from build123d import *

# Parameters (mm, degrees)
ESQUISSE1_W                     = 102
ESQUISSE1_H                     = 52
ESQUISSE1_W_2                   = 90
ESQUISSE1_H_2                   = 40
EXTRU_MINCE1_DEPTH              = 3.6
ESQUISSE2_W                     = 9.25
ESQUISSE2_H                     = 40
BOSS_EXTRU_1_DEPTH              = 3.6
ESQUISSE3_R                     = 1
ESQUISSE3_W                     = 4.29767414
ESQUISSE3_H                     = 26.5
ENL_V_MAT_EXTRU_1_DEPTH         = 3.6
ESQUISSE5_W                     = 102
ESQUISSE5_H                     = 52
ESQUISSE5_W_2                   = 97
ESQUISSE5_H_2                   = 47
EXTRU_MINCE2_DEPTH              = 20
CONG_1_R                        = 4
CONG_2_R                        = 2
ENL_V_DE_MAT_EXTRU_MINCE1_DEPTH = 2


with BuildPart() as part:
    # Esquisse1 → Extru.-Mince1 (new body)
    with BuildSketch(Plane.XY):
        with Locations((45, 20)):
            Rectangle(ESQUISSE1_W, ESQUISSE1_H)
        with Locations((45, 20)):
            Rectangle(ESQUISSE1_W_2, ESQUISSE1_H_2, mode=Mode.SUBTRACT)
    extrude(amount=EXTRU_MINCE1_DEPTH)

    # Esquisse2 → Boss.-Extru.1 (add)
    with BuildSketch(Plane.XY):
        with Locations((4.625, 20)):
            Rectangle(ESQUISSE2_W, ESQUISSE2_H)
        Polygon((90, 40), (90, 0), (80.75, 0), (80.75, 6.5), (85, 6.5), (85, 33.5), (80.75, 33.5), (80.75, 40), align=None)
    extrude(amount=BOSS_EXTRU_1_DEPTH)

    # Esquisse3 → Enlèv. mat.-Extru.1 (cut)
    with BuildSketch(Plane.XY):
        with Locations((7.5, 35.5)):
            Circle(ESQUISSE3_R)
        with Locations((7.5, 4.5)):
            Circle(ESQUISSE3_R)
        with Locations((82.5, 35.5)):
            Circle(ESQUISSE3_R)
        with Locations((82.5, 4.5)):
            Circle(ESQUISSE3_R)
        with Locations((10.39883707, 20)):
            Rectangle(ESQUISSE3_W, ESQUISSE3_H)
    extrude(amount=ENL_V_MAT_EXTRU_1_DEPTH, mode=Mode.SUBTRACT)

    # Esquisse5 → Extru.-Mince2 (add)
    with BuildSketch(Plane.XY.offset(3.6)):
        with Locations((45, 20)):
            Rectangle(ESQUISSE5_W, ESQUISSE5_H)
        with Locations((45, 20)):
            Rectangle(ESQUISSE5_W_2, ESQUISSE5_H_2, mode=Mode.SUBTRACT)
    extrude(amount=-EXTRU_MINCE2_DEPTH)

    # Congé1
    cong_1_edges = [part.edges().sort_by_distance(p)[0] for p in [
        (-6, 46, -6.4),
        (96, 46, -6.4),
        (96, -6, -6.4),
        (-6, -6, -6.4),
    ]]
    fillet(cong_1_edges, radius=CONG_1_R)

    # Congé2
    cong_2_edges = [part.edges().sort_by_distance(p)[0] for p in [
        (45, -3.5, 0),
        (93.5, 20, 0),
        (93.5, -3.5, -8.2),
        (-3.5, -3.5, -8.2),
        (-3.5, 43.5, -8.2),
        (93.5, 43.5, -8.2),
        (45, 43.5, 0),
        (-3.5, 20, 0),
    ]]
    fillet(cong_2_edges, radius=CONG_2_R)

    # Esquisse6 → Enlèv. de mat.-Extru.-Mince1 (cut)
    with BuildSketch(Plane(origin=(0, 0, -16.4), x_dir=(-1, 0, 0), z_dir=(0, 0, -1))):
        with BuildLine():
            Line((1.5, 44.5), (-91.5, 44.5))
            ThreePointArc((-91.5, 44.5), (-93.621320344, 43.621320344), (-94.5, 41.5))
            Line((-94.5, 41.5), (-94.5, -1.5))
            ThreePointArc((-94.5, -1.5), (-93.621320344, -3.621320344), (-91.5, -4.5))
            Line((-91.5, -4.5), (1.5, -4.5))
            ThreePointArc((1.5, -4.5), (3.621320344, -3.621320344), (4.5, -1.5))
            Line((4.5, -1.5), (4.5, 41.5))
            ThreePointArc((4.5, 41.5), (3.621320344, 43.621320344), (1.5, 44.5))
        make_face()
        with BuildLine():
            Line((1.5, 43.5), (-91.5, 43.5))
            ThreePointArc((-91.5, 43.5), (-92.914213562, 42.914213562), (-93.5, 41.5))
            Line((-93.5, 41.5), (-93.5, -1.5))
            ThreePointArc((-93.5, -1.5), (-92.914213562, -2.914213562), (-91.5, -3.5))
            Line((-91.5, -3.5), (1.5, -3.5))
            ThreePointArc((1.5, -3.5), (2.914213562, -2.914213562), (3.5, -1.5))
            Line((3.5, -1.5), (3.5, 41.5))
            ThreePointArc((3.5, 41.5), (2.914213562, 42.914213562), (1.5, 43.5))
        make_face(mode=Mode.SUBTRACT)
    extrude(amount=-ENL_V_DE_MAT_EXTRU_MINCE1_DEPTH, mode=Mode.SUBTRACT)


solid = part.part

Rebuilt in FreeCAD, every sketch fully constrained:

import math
import FreeCAD as App
import Part
import Sketcher


def edges_at(feature, points):
    """Names of the edges that pass closest to the given points."""
    edges = feature.Shape.Edges
    near = lambda p: min(range(len(edges)), key=lambda i: edges[i].distToShape(Part.Vertex(*p))[0])
    return sorted({f"Edge{near(p) + 1}" for p in points})

doc = App.newDocument("Part")
body = doc.addObject("PartDesign::Body", "Body")

# Sketch on XY plane
sketch1 = doc.addObject("Sketcher::SketchObject", "Sketch")
body.addObject(sketch1)
sketch1.AttachmentSupport = (doc.XY_Plane, [""])
sketch1.MapMode = "FlatFace"
sketch1.addGeometry(Part.LineSegment(App.Vector(-6, 46, 0), App.Vector(-6, -6, 0)), False)
sketch1.addGeometry(Part.LineSegment(App.Vector(-6, -6, 0), App.Vector(96, -6, 0)), False)
sketch1.addGeometry(Part.LineSegment(App.Vector(96, -6, 0), App.Vector(96, 46, 0)), False)
sketch1.addGeometry(Part.LineSegment(App.Vector(96, 46, 0), App.Vector(-6, 46, 0)), False)
sketch1.addGeometry(Part.LineSegment(App.Vector(90, 0, 0), App.Vector(0, 0, 0)), False)
sketch1.addGeometry(Part.LineSegment(App.Vector(0, 0, 0), App.Vector(0, 40, 0)), False)
sketch1.addGeometry(Part.LineSegment(App.Vector(0, 40, 0), App.Vector(90, 40, 0)), False)
sketch1.addGeometry(Part.LineSegment(App.Vector(90, 40, 0), App.Vector(90, 0, 0)), False)
sketch1.addConstraint(Sketcher.Constraint("Coincident", 0, 2, 1, 1))
sketch1.addConstraint(Sketcher.Constraint("Coincident", 1, 2, 2, 1))
sketch1.addConstraint(Sketcher.Constraint("Coincident", 2, 2, 3, 1))
sketch1.addConstraint(Sketcher.Constraint("Coincident", 3, 2, 0, 1))
sketch1.addConstraint(Sketcher.Constraint("Coincident", 4, 2, 5, 1))
sketch1.addConstraint(Sketcher.Constraint("Coincident", 5, 2, 6, 1))
sketch1.addConstraint(Sketcher.Constraint("Coincident", 6, 2, 7, 1))
sketch1.addConstraint(Sketcher.Constraint("Coincident", 7, 2, 4, 1))
sketch1.addConstraint(Sketcher.Constraint("Vertical", 0))
sketch1.addConstraint(Sketcher.Constraint("Horizontal", 1))
sketch1.addConstraint(Sketcher.Constraint("Vertical", 2))
sketch1.addConstraint(Sketcher.Constraint("Horizontal", 3))
sketch1.addConstraint(Sketcher.Constraint("Horizontal", 4))
sketch1.addConstraint(Sketcher.Constraint("Vertical", 5))
sketch1.addConstraint(Sketcher.Constraint("Horizontal", 6))
sketch1.addConstraint(Sketcher.Constraint("Vertical", 7))
sketch1.addConstraint(Sketcher.Constraint("Coincident", 4, 2, -1, 1))
sketch1.addConstraint(Sketcher.Constraint("DistanceX", 1, 1, 1, 2, 102.0))
sketch1.addConstraint(Sketcher.Constraint("DistanceX", 4, 2, 4, 1, 90.0))
sketch1.addConstraint(Sketcher.Constraint("DistanceY", 0, 2, 0, 1, 52.0))
sketch1.addConstraint(Sketcher.Constraint("DistanceY", 5, 1, 5, 2, 40.0))
sketch1.addConstraint(Sketcher.Constraint("DistanceX", 0, 2, -1, 1, 6.0))
sketch1.addConstraint(Sketcher.Constraint("DistanceY", 0, 2, -1, 1, 6.0))
pad1 = doc.addObject("PartDesign::Pad", "Pad")
body.addObject(pad1)
pad1.Profile = sketch1
pad1.Length = 3.6

# Sketch on XY plane
sketch2 = doc.addObject("Sketcher::SketchObject", "Sketch001")
body.addObject(sketch2)
sketch2.AttachmentSupport = (doc.XY_Plane, [""])
sketch2.MapMode = "FlatFace"
sketch2.addGeometry(Part.LineSegment(App.Vector(0, 40, 0), App.Vector(0, 0, 0)), False)
sketch2.addGeometry(Part.LineSegment(App.Vector(0, 0, 0), App.Vector(9.2, 0, 0)), False)
sketch2.addGeometry(Part.LineSegment(App.Vector(9.2, 0, 0), App.Vector(9.2, 40, 0)), False)
sketch2.addGeometry(Part.LineSegment(App.Vector(9.2, 40, 0), App.Vector(0, 40, 0)), False)
sketch2.addGeometry(Part.LineSegment(App.Vector(90, 0, 0), App.Vector(90, 40, 0)), False)
sketch2.addGeometry(Part.LineSegment(App.Vector(90, 40, 0), App.Vector(80.8, 40, 0)), False)
sketch2.addGeometry(Part.LineSegment(App.Vector(80.8, 40, 0), App.Vector(80.8, 33.5, 0)), False)
sketch2.addGeometry(Part.LineSegment(App.Vector(80.8, 33.5, 0), App.Vector(85, 33.5, 0)), False)
sketch2.addGeometry(Part.LineSegment(App.Vector(85, 33.5, 0), App.Vector(85, 6.5, 0)), False)
sketch2.addGeometry(Part.LineSegment(App.Vector(85, 6.5, 0), App.Vector(80.8, 6.5, 0)), False)
sketch2.addGeometry(Part.LineSegment(App.Vector(80.8, 6.5, 0), App.Vector(80.8, 0, 0)), False)
sketch2.addGeometry(Part.LineSegment(App.Vector(80.8, 0, 0), App.Vector(90, 0, 0)), False)
sketch2.addConstraint(Sketcher.Constraint("Coincident", 0, 2, 1, 1))
sketch2.addConstraint(Sketcher.Constraint("Coincident", 1, 2, 2, 1))
sketch2.addConstraint(Sketcher.Constraint("Coincident", 2, 2, 3, 1))
sketch2.addConstraint(Sketcher.Constraint("Coincident", 3, 2, 0, 1))
sketch2.addConstraint(Sketcher.Constraint("Coincident", 4, 2, 5, 1))
sketch2.addConstraint(Sketcher.Constraint("Coincident", 5, 2, 6, 1))
sketch2.addConstraint(Sketcher.Constraint("Coincident", 6, 2, 7, 1))
sketch2.addConstraint(Sketcher.Constraint("Coincident", 7, 2, 8, 1))
sketch2.addConstraint(Sketcher.Constraint("Coincident", 8, 2, 9, 1))
sketch2.addConstraint(Sketcher.Constraint("Coincident", 9, 2, 10, 1))
sketch2.addConstraint(Sketcher.Constraint("Coincident", 10, 2, 11, 1))
sketch2.addConstraint(Sketcher.Constraint("Coincident", 11, 2, 4, 1))
sketch2.addConstraint(Sketcher.Constraint("Vertical", 0))
sketch2.addConstraint(Sketcher.Constraint("Horizontal", 1))
sketch2.addConstraint(Sketcher.Constraint("Vertical", 2))
sketch2.addConstraint(Sketcher.Constraint("Horizontal", 3))
sketch2.addConstraint(Sketcher.Constraint("Vertical", 4))
sketch2.addConstraint(Sketcher.Constraint("Horizontal", 5))
sketch2.addConstraint(Sketcher.Constraint("Vertical", 6))
sketch2.addConstraint(Sketcher.Constraint("Horizontal", 7))
sketch2.addConstraint(Sketcher.Constraint("Vertical", 8))
sketch2.addConstraint(Sketcher.Constraint("Horizontal", 9))
sketch2.addConstraint(Sketcher.Constraint("Vertical", 10))
sketch2.addConstraint(Sketcher.Constraint("Horizontal", 11))
sketch2.addConstraint(Sketcher.Constraint("Coincident", 0, 2, -1, 1))
sketch2.addConstraint(Sketcher.Constraint("PointOnObject", 10, 2, -1))
sketch2.addConstraint(Sketcher.Constraint("Horizontal", 3, 2, 4, 2))
sketch2.addConstraint(Sketcher.Constraint("Vertical", 6, 2, 9, 2))
sketch2.addConstraint(Sketcher.Constraint("Equal", 3, 5))
sketch2.addConstraint(Sketcher.Constraint("Equal", 6, 10))
sketch2.addConstraint(Sketcher.Constraint("DistanceY", 0, 2, 0, 1, 40.0))
sketch2.addConstraint(Sketcher.Constraint("DistanceY", 8, 2, 8, 1, 27.0))
sketch2.addConstraint(Sketcher.Constraint("DistanceX", -1, 1, 4, 2, 90.0))
sketch2.addConstraint(Sketcher.Constraint("DistanceX", -1, 1, 7, 2, 85.0))
sketch2.addConstraint(Sketcher.Constraint("DistanceX", 1, 1, 1, 2, 9.25))
pad2 = doc.addObject("PartDesign::Pad", "Pad001")
body.addObject(pad2)
pad2.Profile = sketch2
pad2.Length = 3.6

# Sketch on XY plane
sketch3 = doc.addObject("Sketcher::SketchObject", "Sketch002")
body.addObject(sketch3)
sketch3.AttachmentSupport = (doc.XY_Plane, [""])
sketch3.MapMode = "FlatFace"
sketch3.addGeometry(Part.Circle(App.Vector(7.5, 35.5, 0), App.Vector(0, 0, 1), 1), False)
sketch3.addGeometry(Part.Circle(App.Vector(7.5, 4.5, 0), App.Vector(0, 0, 1), 1), False)
sketch3.addGeometry(Part.Circle(App.Vector(82.5, 35.5, 0), App.Vector(0, 0, 1), 1), False)
sketch3.addGeometry(Part.Circle(App.Vector(82.5, 4.5, 0), App.Vector(0, 0, 1), 1), False)
sketch3.addGeometry(Part.LineSegment(App.Vector(8.2, 33.2, 0), App.Vector(8.2, 6.8, 0)), False)
sketch3.addGeometry(Part.LineSegment(App.Vector(8.2, 6.8, 0), App.Vector(12.5, 6.8, 0)), False)
sketch3.addGeometry(Part.LineSegment(App.Vector(12.5, 6.8, 0), App.Vector(12.5, 33.2, 0)), False)
sketch3.addGeometry(Part.LineSegment(App.Vector(12.5, 33.2, 0), App.Vector(8.2, 33.2, 0)), False)
sketch3.addConstraint(Sketcher.Constraint("Coincident", 4, 2, 5, 1))
sketch3.addConstraint(Sketcher.Constraint("Coincident", 5, 2, 6, 1))
sketch3.addConstraint(Sketcher.Constraint("Coincident", 6, 2, 7, 1))
sketch3.addConstraint(Sketcher.Constraint("Coincident", 7, 2, 4, 1))
sketch3.addConstraint(Sketcher.Constraint("Vertical", 4))
sketch3.addConstraint(Sketcher.Constraint("Horizontal", 5))
sketch3.addConstraint(Sketcher.Constraint("Vertical", 6))
sketch3.addConstraint(Sketcher.Constraint("Horizontal", 7))
sketch3.addConstraint(Sketcher.Constraint("Equal", 0, 1))
sketch3.addConstraint(Sketcher.Constraint("Equal", 1, 2))
sketch3.addConstraint(Sketcher.Constraint("Equal", 2, 3))
sketch3.addConstraint(Sketcher.Constraint("Horizontal", 0, 3, 2, 3))
sketch3.addConstraint(Sketcher.Constraint("Horizontal", 1, 3, 3, 3))
sketch3.addConstraint(Sketcher.Constraint("Vertical", 0, 3, 1, 3))
sketch3.addConstraint(Sketcher.Constraint("Vertical", 2, 3, 3, 3))
sketch3.addConstraint(Sketcher.Constraint("Diameter", 0, 2.0))
sketch3.addConstraint(Sketcher.Constraint("DistanceY", 4, 2, 4, 1, 26.5))
sketch3.addConstraint(Sketcher.Constraint("DistanceY", 1, 3, 0, 3, 31.0))
sketch3.addConstraint(Sketcher.Constraint("DistanceX", 0, 3, 2, 3, 75.0))
sketch3.addConstraint(Sketcher.Constraint("DistanceX", -1, 1, 0, 3, 7.5))
sketch3.addConstraint(Sketcher.Constraint("DistanceY", -1, 1, 0, 3, 35.5))
sketch3.addConstraint(Sketcher.Constraint("DistanceX", -1, 1, 4, 2, 8.25))
sketch3.addConstraint(Sketcher.Constraint("DistanceY", -1, 1, 4, 2, 6.75))
sketch3.addConstraint(Sketcher.Constraint("DistanceX", 5, 1, 5, 2, 4.297674))
pocket1 = doc.addObject("PartDesign::Pocket", "Pocket")
body.addObject(pocket1)
pocket1.Profile = sketch3
pocket1.Length = 3.6
pocket1.Reversed = True

# Sketch on XY plane
sketch4 = doc.addObject("Sketcher::SketchObject", "Sketch003")
body.addObject(sketch4)
sketch4.AttachmentSupport = (doc.XY_Plane, [""])
sketch4.MapMode = "FlatFace"
sketch4.AttachmentOffset = App.Placement(App.Vector(0, 0, 3.6), App.Rotation())
sketch4.addGeometry(Part.LineSegment(App.Vector(-6, 46, 0), App.Vector(-6, -6, 0)), False)
sketch4.addGeometry(Part.LineSegment(App.Vector(-6, -6, 0), App.Vector(96, -6, 0)), False)
sketch4.addGeometry(Part.LineSegment(App.Vector(96, -6, 0), App.Vector(96, 46, 0)), False)
sketch4.addGeometry(Part.LineSegment(App.Vector(96, 46, 0), App.Vector(-6, 46, 0)), False)
sketch4.addGeometry(Part.LineSegment(App.Vector(94, -4, 0), App.Vector(-4, -4, 0)), False)
sketch4.addGeometry(Part.LineSegment(App.Vector(-4, -4, 0), App.Vector(-4, 44, 0)), False)
sketch4.addGeometry(Part.LineSegment(App.Vector(-4, 44, 0), App.Vector(94, 44, 0)), False)
sketch4.addGeometry(Part.LineSegment(App.Vector(94, 44, 0), App.Vector(94, -4, 0)), False)
sketch4.addConstraint(Sketcher.Constraint("Coincident", 0, 2, 1, 1))
sketch4.addConstraint(Sketcher.Constraint("Coincident", 1, 2, 2, 1))
sketch4.addConstraint(Sketcher.Constraint("Coincident", 2, 2, 3, 1))
sketch4.addConstraint(Sketcher.Constraint("Coincident", 3, 2, 0, 1))
sketch4.addConstraint(Sketcher.Constraint("Coincident", 4, 2, 5, 1))
sketch4.addConstraint(Sketcher.Constraint("Coincident", 5, 2, 6, 1))
sketch4.addConstraint(Sketcher.Constraint("Coincident", 6, 2, 7, 1))
sketch4.addConstraint(Sketcher.Constraint("Coincident", 7, 2, 4, 1))
sketch4.addConstraint(Sketcher.Constraint("Vertical", 0))
sketch4.addConstraint(Sketcher.Constraint("Horizontal", 1))
sketch4.addConstraint(Sketcher.Constraint("Vertical", 2))
sketch4.addConstraint(Sketcher.Constraint("Horizontal", 3))
sketch4.addConstraint(Sketcher.Constraint("Horizontal", 4))
sketch4.addConstraint(Sketcher.Constraint("Vertical", 5))
sketch4.addConstraint(Sketcher.Constraint("Horizontal", 6))
sketch4.addConstraint(Sketcher.Constraint("Vertical", 7))
sketch4.addConstraint(Sketcher.Constraint("DistanceX", 1, 1, 1, 2, 102.0))
sketch4.addConstraint(Sketcher.Constraint("DistanceX", 4, 2, 4, 1, 97.0))
sketch4.addConstraint(Sketcher.Constraint("DistanceY", 0, 2, 0, 1, 52.0))
sketch4.addConstraint(Sketcher.Constraint("DistanceY", 5, 1, 5, 2, 47.0))
sketch4.addConstraint(Sketcher.Constraint("DistanceX", 0, 2, -1, 1, 6.0))
sketch4.addConstraint(Sketcher.Constraint("DistanceY", 0, 2, -1, 1, 6.0))
sketch4.addConstraint(Sketcher.Constraint("DistanceX", 4, 2, -1, 1, 3.5))
sketch4.addConstraint(Sketcher.Constraint("DistanceY", 4, 2, -1, 1, 3.5))
pad3 = doc.addObject("PartDesign::Pad", "Pad002")
body.addObject(pad3)
pad3.Profile = sketch4
pad3.Length = 20
pad3.Reversed = True
doc.recompute()

fillet = doc.addObject("PartDesign::Fillet", "Fillet")
body.addObject(fillet)
fillet.Base = (pad3, edges_at(pad3, [
    (-6, 46, -6.4),
    (96, 46, -6.4),
    (96, -6, -6.4),
    (-6, -6, -6.4),
]))
fillet.Radius = 4
doc.recompute()

fillet2 = doc.addObject("PartDesign::Fillet", "Fillet001")
body.addObject(fillet2)
fillet2.Base = (fillet, edges_at(fillet, [
    (45, -3.5, 0),
    (93.5, 20, 0),
    (93.5, -3.5, -8.2),
    (-3.5, -3.5, -8.2),
    (-3.5, 43.5, -8.2),
    (93.5, 43.5, -8.2),
    (45, 43.5, 0),
    (-3.5, 20, 0),
]))
fillet2.Radius = 2

# Sketch on XY plane
sketch5 = doc.addObject("Sketcher::SketchObject", "Sketch004")
body.addObject(sketch5)
sketch5.AttachmentSupport = (doc.XY_Plane, [""])
sketch5.MapMode = "FlatFace"
sketch5.AttachmentOffset = App.Placement(App.Vector(0, 0, -16.4), App.Rotation())
sketch5.addGeometry(Part.LineSegment(App.Vector(-1.5, 44.5, 0), App.Vector(91.5, 44.5, 0)), False)
sketch5.addGeometry(Part.ArcOfCircle(Part.Circle(App.Vector(91.5, 41.5, 0), App.Vector(0, 0, 1), 3), math.radians(0), math.radians(90)), False)
sketch5.addGeometry(Part.LineSegment(App.Vector(94.5, 41.5, 0), App.Vector(94.5, -1.5, 0)), False)
sketch5.addGeometry(Part.ArcOfCircle(Part.Circle(App.Vector(91.5, -1.5, 0), App.Vector(0, 0, 1), 3), math.radians(-90), math.radians(0)), False)
sketch5.addGeometry(Part.LineSegment(App.Vector(91.5, -4.5, 0), App.Vector(-1.5, -4.5, 0)), False)
sketch5.addGeometry(Part.ArcOfCircle(Part.Circle(App.Vector(-1.5, -1.5, 0), App.Vector(0, 0, 1), 3), math.radians(180), math.radians(270)), False)
sketch5.addGeometry(Part.LineSegment(App.Vector(-4.5, -1.5, 0), App.Vector(-4.5, 41.5, 0)), False)
sketch5.addGeometry(Part.ArcOfCircle(Part.Circle(App.Vector(-1.5, 41.5, 0), App.Vector(0, 0, 1), 3), math.radians(90), math.radians(180)), False)
sketch5.addGeometry(Part.LineSegment(App.Vector(91.5, 43.5, 0), App.Vector(-1.5, 43.5, 0)), False)
sketch5.addGeometry(Part.ArcOfCircle(Part.Circle(App.Vector(-1.5, 41.5, 0), App.Vector(0, 0, 1), 2), math.radians(90), math.radians(180)), False)
sketch5.addGeometry(Part.LineSegment(App.Vector(-3.5, 41.5, 0), App.Vector(-3.5, -1.5, 0)), False)
sketch5.addGeometry(Part.ArcOfCircle(Part.Circle(App.Vector(-1.5, -1.5, 0), App.Vector(0, 0, 1), 2), math.radians(-180), math.radians(-90)), False)
sketch5.addGeometry(Part.LineSegment(App.Vector(-1.5, -3.5, 0), App.Vector(91.5, -3.5, 0)), False)
sketch5.addGeometry(Part.ArcOfCircle(Part.Circle(App.Vector(91.5, -1.5, 0), App.Vector(0, 0, 1), 2), math.radians(-90), math.radians(0)), False)
sketch5.addGeometry(Part.LineSegment(App.Vector(93.5, -1.5, 0), App.Vector(93.5, 41.5, 0)), False)
sketch5.addGeometry(Part.ArcOfCircle(Part.Circle(App.Vector(91.5, 41.5, 0), App.Vector(0, 0, 1), 2), math.radians(0), math.radians(90)), False)
sketch5.addConstraint(Sketcher.Constraint("Tangent", 0, 2, 1, 2))
sketch5.addConstraint(Sketcher.Constraint("Tangent", 1, 1, 2, 1))
sketch5.addConstraint(Sketcher.Constraint("Tangent", 2, 2, 3, 2))
sketch5.addConstraint(Sketcher.Constraint("Tangent", 3, 1, 4, 1))
sketch5.addConstraint(Sketcher.Constraint("Tangent", 4, 2, 5, 2))
sketch5.addConstraint(Sketcher.Constraint("Tangent", 5, 1, 6, 1))
sketch5.addConstraint(Sketcher.Constraint("Tangent", 6, 2, 7, 2))
sketch5.addConstraint(Sketcher.Constraint("Tangent", 7, 1, 0, 1))
sketch5.addConstraint(Sketcher.Constraint("Tangent", 8, 2, 9, 1))
sketch5.addConstraint(Sketcher.Constraint("Tangent", 9, 2, 10, 1))
sketch5.addConstraint(Sketcher.Constraint("Tangent", 10, 2, 11, 1))
sketch5.addConstraint(Sketcher.Constraint("Tangent", 11, 2, 12, 1))
sketch5.addConstraint(Sketcher.Constraint("Tangent", 12, 2, 13, 1))
sketch5.addConstraint(Sketcher.Constraint("Tangent", 13, 2, 14, 1))
sketch5.addConstraint(Sketcher.Constraint("Tangent", 14, 2, 15, 1))
sketch5.addConstraint(Sketcher.Constraint("Tangent", 15, 2, 8, 1))
sketch5.addConstraint(Sketcher.Constraint("Horizontal", 0))
sketch5.addConstraint(Sketcher.Constraint("Vertical", 2))
sketch5.addConstraint(Sketcher.Constraint("Horizontal", 4))
sketch5.addConstraint(Sketcher.Constraint("Vertical", 6))
sketch5.addConstraint(Sketcher.Constraint("Horizontal", 8))
sketch5.addConstraint(Sketcher.Constraint("Vertical", 10))
sketch5.addConstraint(Sketcher.Constraint("Horizontal", 12))
sketch5.addConstraint(Sketcher.Constraint("Vertical", 14))
sketch5.addConstraint(Sketcher.Constraint("Coincident", 9, 3, 7, 3))
sketch5.addConstraint(Sketcher.Constraint("Coincident", 11, 3, 5, 3))
sketch5.addConstraint(Sketcher.Constraint("Coincident", 13, 3, 3, 3))
sketch5.addConstraint(Sketcher.Constraint("Equal", 1, 3))
sketch5.addConstraint(Sketcher.Constraint("Equal", 3, 5))
sketch5.addConstraint(Sketcher.Constraint("Equal", 5, 7))
sketch5.addConstraint(Sketcher.Constraint("Equal", 13, 15))
sketch5.addConstraint(Sketcher.Constraint("Radius", 1, 3.0))
sketch5.addConstraint(Sketcher.Constraint("Radius", 9, 2.0))
sketch5.addConstraint(Sketcher.Constraint("DistanceX", 0, 1, 0, 2, 93.0))
sketch5.addConstraint(Sketcher.Constraint("DistanceY", 2, 2, 2, 1, 43.0))
sketch5.addConstraint(Sketcher.Constraint("DistanceX", -1, 1, 1, 3, 91.5))
sketch5.addConstraint(Sketcher.Constraint("DistanceY", -1, 1, 1, 3, 41.5))
pocket2 = doc.addObject("PartDesign::Pocket", "Pocket001")
body.addObject(pocket2)
pocket2.Profile = sketch5
pocket2.Length = 2
pocket2.Reversed = True

doc.recompute()
